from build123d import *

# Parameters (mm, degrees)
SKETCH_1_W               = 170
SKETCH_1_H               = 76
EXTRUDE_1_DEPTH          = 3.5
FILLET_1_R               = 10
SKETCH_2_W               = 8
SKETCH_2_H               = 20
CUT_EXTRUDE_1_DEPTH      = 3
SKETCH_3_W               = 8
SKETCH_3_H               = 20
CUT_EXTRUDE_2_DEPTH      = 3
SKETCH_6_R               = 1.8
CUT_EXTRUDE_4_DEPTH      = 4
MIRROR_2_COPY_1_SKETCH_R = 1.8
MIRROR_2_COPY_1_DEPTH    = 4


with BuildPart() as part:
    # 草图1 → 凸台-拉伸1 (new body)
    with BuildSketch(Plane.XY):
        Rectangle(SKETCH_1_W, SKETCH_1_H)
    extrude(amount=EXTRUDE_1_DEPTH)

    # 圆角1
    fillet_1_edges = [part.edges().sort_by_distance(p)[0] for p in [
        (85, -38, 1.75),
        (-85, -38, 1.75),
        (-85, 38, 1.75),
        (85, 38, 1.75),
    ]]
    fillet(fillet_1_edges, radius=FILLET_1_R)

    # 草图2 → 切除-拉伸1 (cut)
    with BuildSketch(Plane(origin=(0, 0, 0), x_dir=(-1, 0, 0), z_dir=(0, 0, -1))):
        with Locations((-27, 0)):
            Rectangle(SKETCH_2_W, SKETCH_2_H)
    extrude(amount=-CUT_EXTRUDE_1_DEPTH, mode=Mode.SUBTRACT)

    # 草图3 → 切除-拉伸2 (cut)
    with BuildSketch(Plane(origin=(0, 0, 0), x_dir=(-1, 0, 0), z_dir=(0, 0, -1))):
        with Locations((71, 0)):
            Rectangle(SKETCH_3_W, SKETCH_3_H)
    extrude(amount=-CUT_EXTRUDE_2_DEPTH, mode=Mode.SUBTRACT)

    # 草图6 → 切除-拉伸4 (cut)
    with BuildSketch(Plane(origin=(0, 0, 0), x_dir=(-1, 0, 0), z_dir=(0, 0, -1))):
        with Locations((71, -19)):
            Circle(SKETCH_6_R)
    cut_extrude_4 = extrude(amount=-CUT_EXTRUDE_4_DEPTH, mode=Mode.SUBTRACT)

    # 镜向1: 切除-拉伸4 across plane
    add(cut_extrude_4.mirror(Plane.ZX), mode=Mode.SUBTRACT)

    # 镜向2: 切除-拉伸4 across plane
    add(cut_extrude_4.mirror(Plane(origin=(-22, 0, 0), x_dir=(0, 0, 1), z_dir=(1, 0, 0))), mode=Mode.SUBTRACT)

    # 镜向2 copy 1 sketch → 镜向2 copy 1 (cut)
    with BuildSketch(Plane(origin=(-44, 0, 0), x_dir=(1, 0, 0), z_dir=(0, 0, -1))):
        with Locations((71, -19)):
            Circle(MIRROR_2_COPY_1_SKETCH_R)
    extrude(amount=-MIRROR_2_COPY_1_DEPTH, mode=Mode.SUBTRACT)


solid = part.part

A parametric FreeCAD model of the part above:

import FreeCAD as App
import Part
import Sketcher
from FreeCAD import Vector


def edges_at(feature, points):
    """Names of the edges that pass closest to the given points."""
    edges = feature.Shape.Edges
    near = lambda p: min(range(len(edges)), key=lambda i: edges[i].distToShape(Part.Vertex(*p))[0])
    return sorted({f"Edge{near(p) + 1}" for p in points})


def add_polygon(sketch, points):
    """Adds a closed chain of lines whose ends are joined by coincident constraints."""
    first, n = sketch.GeometryCount, len(points)
    for a, b in zip(points, points[1:] + points[:1]):
        sketch.addGeometry(Part.LineSegment(App.Vector(*a, 0), App.Vector(*b, 0)), False)
    for i in range(n):
        sketch.addConstraint(Sketcher.Constraint("Coincident", first + i, 2, first + (i + 1) % n, 1))

doc = App.newDocument("Part")
body = doc.addObject("PartDesign::Body", "Body")

sketch1 = body.newObject("Sketcher::SketchObject", "Sketch")
sketch1.AttachmentSupport = (doc.getObject("XY_Plane"), [""])
sketch1.MapMode = "FlatFace"
add_polygon(sketch1, [(-85, 38), (-85, -38), (85, -38), (85, 38)])
sketch1.addConstraint([
    Sketcher.Constraint("Vertical", 0),
    Sketcher.Constraint("Horizontal", 1),
    Sketcher.Constraint("Vertical", 2),
    Sketcher.Constraint("Horizontal", 3),
    Sketcher.Constraint("Symmetric", 0, 2, 2, 2, -1, 1),
    Sketcher.Constraint("DistanceX", 1, 1, 1, 2, 170.0),
    Sketcher.Constraint("DistanceY", 0, 2, 0, 1, 76.0),
])
pad1 = body.newObject("PartDesign::Pad", "Pad")
pad1.Profile = sketch1
pad1.Length = 3.5
doc.recompute()

fillet = body.newObject("PartDesign::Fillet", "Fillet")
fillet.Base = (pad1, edges_at(pad1, [
    (85, -38, 1.75),
    (-85, -38, 1.75),
    (-85, 38, 1.75),
    (85, 38, 1.75),
]))
fillet.Radius = 10

sketch2 = body.newObject("Sketcher::SketchObject", "Sketch001")
sketch2.AttachmentSupport = (doc.getObject("XY_Plane"), [""])
sketch2.MapMode = "FlatFace"
add_polygon(sketch2, [(31, 10), (31, -10), (23, -10), (23, 10)])
sketch2.addConstraint([
    Sketcher.Constraint("Vertical", 0),
    Sketcher.Constraint("Horizontal", 1),
    Sketcher.Constraint("Vertical", 2),
    Sketcher.Constraint("Horizontal", 3),
    Sketcher.Constraint("DistanceX", 1, 2, 1, 1, 8.0),
    Sketcher.Constraint("DistanceY", 0, 2, 0, 1, 20.0),
    Sketcher.Constraint("DistanceX", -1, 1, 0, 2, 31.0),
    Sketcher.Constraint("DistanceY", 0, 2, -1, 1, 10.0),
])
pocket1 = body.newObject("PartDesign::Pocket", "Pocket")
pocket1.Profile = sketch2
pocket1.Length = 3
pocket1.Reversed = True

sketch3 = body.newObject("Sketcher::SketchObject", "Sketch002")
sketch3.AttachmentSupport = (doc.getObject("XY_Plane"), [""])
sketch3.MapMode = "FlatFace"
add_polygon(sketch3, [(-67, 10), (-67, -10), (-75, -10), (-75, 10)])
sketch3.addConstraint([
    Sketcher.Constraint("Vertical", 0),
    Sketcher.Constraint("Horizontal", 1),
    Sketcher.Constraint("Vertical", 2),
    Sketcher.Constraint("Horizontal", 3),
    Sketcher.Constraint("DistanceX", 1, 2, 1, 1, 8.0),
    Sketcher.Constraint("DistanceY", 0, 2, 0, 1, 20.0),
    Sketcher.Constraint("DistanceX", 0, 2, -1, 1, 67.0),
    Sketcher.Constraint("DistanceY", 0, 2, -1, 1, 10.0),
])
pocket2 = body.newObject("PartDesign::Pocket", "Pocket001")
pocket2.Profile = sketch3
pocket2.Length = 3
pocket2.Reversed = True

sketch4 = body.newObject("Sketcher::SketchObject", "Sketch003")
sketch4.AttachmentSupport = (doc.getObject("XY_Plane"), [""])
sketch4.MapMode = "FlatFace"
sketch4.addGeometry(Part.Circle(Vector(-71, -19, 0), Vector(0, 0, 1), 1.8), False)
sketch4.addConstraint([
    Sketcher.Constraint("Diameter", 0, 3.6),
    Sketcher.Constraint("DistanceX", 0, 3, -1, 1, 71.0),
    Sketcher.Constraint("DistanceY", 0, 3, -1, 1, 19.0),
])
pocket3 = body.newObject("PartDesign::Pocket", "Pocket002")
pocket3.Profile = sketch4
pocket3.Length = 4
pocket3.Reversed = True
doc.recompute()

mirrored = body.newObject("PartDesign::Mirrored", "Mirrored")
mirrored.Originals = [pocket3]
mirrored.MirrorPlane = (doc.getObject("XZ_Plane"), [""])
body.Tip = mirrored
doc.recompute()

datumplane = body.newObject("PartDesign::Plane", "DatumPlane")
datumplane.AttachmentSupport = (doc.getObject("YZ_Plane"), [""])
datumplane.MapMode = "FlatFace"
datumplane.AttachmentOffset = App.Placement(Vector(0, 0, -22), App.Rotation())
mirrored2 = body.newObject("PartDesign::Mirrored", "Mirrored001")
mirrored2.Originals = [pocket3]
mirrored2.MirrorPlane = (datumplane, [""])
body.Tip = mirrored2

sketch5 = body.newObject("Sketcher::SketchObject", "Sketch004")
sketch5.AttachmentSupport = (doc.getObject("XY_Plane"), [""])
sketch5.MapMode = "FlatFace"
sketch5.addGeometry(Part.Circle(Vector(27, 19, 0), Vector(0, 0, 1), 1.8), False)
sketch5.addConstraint([
    Sketcher.Constraint("Diameter", 0, 3.6),
    Sketcher.Constraint("DistanceX", -1, 1, 0, 3, 27.0),
    Sketcher.Constraint("DistanceY", -1, 1, 0, 3, 19.0),
])
pocket4 = body.newObject("PartDesign::Pocket", "Pocket003")
pocket4.Profile = sketch5
pocket4.Length = 4
pocket4.Reversed = True

doc.recompute()
